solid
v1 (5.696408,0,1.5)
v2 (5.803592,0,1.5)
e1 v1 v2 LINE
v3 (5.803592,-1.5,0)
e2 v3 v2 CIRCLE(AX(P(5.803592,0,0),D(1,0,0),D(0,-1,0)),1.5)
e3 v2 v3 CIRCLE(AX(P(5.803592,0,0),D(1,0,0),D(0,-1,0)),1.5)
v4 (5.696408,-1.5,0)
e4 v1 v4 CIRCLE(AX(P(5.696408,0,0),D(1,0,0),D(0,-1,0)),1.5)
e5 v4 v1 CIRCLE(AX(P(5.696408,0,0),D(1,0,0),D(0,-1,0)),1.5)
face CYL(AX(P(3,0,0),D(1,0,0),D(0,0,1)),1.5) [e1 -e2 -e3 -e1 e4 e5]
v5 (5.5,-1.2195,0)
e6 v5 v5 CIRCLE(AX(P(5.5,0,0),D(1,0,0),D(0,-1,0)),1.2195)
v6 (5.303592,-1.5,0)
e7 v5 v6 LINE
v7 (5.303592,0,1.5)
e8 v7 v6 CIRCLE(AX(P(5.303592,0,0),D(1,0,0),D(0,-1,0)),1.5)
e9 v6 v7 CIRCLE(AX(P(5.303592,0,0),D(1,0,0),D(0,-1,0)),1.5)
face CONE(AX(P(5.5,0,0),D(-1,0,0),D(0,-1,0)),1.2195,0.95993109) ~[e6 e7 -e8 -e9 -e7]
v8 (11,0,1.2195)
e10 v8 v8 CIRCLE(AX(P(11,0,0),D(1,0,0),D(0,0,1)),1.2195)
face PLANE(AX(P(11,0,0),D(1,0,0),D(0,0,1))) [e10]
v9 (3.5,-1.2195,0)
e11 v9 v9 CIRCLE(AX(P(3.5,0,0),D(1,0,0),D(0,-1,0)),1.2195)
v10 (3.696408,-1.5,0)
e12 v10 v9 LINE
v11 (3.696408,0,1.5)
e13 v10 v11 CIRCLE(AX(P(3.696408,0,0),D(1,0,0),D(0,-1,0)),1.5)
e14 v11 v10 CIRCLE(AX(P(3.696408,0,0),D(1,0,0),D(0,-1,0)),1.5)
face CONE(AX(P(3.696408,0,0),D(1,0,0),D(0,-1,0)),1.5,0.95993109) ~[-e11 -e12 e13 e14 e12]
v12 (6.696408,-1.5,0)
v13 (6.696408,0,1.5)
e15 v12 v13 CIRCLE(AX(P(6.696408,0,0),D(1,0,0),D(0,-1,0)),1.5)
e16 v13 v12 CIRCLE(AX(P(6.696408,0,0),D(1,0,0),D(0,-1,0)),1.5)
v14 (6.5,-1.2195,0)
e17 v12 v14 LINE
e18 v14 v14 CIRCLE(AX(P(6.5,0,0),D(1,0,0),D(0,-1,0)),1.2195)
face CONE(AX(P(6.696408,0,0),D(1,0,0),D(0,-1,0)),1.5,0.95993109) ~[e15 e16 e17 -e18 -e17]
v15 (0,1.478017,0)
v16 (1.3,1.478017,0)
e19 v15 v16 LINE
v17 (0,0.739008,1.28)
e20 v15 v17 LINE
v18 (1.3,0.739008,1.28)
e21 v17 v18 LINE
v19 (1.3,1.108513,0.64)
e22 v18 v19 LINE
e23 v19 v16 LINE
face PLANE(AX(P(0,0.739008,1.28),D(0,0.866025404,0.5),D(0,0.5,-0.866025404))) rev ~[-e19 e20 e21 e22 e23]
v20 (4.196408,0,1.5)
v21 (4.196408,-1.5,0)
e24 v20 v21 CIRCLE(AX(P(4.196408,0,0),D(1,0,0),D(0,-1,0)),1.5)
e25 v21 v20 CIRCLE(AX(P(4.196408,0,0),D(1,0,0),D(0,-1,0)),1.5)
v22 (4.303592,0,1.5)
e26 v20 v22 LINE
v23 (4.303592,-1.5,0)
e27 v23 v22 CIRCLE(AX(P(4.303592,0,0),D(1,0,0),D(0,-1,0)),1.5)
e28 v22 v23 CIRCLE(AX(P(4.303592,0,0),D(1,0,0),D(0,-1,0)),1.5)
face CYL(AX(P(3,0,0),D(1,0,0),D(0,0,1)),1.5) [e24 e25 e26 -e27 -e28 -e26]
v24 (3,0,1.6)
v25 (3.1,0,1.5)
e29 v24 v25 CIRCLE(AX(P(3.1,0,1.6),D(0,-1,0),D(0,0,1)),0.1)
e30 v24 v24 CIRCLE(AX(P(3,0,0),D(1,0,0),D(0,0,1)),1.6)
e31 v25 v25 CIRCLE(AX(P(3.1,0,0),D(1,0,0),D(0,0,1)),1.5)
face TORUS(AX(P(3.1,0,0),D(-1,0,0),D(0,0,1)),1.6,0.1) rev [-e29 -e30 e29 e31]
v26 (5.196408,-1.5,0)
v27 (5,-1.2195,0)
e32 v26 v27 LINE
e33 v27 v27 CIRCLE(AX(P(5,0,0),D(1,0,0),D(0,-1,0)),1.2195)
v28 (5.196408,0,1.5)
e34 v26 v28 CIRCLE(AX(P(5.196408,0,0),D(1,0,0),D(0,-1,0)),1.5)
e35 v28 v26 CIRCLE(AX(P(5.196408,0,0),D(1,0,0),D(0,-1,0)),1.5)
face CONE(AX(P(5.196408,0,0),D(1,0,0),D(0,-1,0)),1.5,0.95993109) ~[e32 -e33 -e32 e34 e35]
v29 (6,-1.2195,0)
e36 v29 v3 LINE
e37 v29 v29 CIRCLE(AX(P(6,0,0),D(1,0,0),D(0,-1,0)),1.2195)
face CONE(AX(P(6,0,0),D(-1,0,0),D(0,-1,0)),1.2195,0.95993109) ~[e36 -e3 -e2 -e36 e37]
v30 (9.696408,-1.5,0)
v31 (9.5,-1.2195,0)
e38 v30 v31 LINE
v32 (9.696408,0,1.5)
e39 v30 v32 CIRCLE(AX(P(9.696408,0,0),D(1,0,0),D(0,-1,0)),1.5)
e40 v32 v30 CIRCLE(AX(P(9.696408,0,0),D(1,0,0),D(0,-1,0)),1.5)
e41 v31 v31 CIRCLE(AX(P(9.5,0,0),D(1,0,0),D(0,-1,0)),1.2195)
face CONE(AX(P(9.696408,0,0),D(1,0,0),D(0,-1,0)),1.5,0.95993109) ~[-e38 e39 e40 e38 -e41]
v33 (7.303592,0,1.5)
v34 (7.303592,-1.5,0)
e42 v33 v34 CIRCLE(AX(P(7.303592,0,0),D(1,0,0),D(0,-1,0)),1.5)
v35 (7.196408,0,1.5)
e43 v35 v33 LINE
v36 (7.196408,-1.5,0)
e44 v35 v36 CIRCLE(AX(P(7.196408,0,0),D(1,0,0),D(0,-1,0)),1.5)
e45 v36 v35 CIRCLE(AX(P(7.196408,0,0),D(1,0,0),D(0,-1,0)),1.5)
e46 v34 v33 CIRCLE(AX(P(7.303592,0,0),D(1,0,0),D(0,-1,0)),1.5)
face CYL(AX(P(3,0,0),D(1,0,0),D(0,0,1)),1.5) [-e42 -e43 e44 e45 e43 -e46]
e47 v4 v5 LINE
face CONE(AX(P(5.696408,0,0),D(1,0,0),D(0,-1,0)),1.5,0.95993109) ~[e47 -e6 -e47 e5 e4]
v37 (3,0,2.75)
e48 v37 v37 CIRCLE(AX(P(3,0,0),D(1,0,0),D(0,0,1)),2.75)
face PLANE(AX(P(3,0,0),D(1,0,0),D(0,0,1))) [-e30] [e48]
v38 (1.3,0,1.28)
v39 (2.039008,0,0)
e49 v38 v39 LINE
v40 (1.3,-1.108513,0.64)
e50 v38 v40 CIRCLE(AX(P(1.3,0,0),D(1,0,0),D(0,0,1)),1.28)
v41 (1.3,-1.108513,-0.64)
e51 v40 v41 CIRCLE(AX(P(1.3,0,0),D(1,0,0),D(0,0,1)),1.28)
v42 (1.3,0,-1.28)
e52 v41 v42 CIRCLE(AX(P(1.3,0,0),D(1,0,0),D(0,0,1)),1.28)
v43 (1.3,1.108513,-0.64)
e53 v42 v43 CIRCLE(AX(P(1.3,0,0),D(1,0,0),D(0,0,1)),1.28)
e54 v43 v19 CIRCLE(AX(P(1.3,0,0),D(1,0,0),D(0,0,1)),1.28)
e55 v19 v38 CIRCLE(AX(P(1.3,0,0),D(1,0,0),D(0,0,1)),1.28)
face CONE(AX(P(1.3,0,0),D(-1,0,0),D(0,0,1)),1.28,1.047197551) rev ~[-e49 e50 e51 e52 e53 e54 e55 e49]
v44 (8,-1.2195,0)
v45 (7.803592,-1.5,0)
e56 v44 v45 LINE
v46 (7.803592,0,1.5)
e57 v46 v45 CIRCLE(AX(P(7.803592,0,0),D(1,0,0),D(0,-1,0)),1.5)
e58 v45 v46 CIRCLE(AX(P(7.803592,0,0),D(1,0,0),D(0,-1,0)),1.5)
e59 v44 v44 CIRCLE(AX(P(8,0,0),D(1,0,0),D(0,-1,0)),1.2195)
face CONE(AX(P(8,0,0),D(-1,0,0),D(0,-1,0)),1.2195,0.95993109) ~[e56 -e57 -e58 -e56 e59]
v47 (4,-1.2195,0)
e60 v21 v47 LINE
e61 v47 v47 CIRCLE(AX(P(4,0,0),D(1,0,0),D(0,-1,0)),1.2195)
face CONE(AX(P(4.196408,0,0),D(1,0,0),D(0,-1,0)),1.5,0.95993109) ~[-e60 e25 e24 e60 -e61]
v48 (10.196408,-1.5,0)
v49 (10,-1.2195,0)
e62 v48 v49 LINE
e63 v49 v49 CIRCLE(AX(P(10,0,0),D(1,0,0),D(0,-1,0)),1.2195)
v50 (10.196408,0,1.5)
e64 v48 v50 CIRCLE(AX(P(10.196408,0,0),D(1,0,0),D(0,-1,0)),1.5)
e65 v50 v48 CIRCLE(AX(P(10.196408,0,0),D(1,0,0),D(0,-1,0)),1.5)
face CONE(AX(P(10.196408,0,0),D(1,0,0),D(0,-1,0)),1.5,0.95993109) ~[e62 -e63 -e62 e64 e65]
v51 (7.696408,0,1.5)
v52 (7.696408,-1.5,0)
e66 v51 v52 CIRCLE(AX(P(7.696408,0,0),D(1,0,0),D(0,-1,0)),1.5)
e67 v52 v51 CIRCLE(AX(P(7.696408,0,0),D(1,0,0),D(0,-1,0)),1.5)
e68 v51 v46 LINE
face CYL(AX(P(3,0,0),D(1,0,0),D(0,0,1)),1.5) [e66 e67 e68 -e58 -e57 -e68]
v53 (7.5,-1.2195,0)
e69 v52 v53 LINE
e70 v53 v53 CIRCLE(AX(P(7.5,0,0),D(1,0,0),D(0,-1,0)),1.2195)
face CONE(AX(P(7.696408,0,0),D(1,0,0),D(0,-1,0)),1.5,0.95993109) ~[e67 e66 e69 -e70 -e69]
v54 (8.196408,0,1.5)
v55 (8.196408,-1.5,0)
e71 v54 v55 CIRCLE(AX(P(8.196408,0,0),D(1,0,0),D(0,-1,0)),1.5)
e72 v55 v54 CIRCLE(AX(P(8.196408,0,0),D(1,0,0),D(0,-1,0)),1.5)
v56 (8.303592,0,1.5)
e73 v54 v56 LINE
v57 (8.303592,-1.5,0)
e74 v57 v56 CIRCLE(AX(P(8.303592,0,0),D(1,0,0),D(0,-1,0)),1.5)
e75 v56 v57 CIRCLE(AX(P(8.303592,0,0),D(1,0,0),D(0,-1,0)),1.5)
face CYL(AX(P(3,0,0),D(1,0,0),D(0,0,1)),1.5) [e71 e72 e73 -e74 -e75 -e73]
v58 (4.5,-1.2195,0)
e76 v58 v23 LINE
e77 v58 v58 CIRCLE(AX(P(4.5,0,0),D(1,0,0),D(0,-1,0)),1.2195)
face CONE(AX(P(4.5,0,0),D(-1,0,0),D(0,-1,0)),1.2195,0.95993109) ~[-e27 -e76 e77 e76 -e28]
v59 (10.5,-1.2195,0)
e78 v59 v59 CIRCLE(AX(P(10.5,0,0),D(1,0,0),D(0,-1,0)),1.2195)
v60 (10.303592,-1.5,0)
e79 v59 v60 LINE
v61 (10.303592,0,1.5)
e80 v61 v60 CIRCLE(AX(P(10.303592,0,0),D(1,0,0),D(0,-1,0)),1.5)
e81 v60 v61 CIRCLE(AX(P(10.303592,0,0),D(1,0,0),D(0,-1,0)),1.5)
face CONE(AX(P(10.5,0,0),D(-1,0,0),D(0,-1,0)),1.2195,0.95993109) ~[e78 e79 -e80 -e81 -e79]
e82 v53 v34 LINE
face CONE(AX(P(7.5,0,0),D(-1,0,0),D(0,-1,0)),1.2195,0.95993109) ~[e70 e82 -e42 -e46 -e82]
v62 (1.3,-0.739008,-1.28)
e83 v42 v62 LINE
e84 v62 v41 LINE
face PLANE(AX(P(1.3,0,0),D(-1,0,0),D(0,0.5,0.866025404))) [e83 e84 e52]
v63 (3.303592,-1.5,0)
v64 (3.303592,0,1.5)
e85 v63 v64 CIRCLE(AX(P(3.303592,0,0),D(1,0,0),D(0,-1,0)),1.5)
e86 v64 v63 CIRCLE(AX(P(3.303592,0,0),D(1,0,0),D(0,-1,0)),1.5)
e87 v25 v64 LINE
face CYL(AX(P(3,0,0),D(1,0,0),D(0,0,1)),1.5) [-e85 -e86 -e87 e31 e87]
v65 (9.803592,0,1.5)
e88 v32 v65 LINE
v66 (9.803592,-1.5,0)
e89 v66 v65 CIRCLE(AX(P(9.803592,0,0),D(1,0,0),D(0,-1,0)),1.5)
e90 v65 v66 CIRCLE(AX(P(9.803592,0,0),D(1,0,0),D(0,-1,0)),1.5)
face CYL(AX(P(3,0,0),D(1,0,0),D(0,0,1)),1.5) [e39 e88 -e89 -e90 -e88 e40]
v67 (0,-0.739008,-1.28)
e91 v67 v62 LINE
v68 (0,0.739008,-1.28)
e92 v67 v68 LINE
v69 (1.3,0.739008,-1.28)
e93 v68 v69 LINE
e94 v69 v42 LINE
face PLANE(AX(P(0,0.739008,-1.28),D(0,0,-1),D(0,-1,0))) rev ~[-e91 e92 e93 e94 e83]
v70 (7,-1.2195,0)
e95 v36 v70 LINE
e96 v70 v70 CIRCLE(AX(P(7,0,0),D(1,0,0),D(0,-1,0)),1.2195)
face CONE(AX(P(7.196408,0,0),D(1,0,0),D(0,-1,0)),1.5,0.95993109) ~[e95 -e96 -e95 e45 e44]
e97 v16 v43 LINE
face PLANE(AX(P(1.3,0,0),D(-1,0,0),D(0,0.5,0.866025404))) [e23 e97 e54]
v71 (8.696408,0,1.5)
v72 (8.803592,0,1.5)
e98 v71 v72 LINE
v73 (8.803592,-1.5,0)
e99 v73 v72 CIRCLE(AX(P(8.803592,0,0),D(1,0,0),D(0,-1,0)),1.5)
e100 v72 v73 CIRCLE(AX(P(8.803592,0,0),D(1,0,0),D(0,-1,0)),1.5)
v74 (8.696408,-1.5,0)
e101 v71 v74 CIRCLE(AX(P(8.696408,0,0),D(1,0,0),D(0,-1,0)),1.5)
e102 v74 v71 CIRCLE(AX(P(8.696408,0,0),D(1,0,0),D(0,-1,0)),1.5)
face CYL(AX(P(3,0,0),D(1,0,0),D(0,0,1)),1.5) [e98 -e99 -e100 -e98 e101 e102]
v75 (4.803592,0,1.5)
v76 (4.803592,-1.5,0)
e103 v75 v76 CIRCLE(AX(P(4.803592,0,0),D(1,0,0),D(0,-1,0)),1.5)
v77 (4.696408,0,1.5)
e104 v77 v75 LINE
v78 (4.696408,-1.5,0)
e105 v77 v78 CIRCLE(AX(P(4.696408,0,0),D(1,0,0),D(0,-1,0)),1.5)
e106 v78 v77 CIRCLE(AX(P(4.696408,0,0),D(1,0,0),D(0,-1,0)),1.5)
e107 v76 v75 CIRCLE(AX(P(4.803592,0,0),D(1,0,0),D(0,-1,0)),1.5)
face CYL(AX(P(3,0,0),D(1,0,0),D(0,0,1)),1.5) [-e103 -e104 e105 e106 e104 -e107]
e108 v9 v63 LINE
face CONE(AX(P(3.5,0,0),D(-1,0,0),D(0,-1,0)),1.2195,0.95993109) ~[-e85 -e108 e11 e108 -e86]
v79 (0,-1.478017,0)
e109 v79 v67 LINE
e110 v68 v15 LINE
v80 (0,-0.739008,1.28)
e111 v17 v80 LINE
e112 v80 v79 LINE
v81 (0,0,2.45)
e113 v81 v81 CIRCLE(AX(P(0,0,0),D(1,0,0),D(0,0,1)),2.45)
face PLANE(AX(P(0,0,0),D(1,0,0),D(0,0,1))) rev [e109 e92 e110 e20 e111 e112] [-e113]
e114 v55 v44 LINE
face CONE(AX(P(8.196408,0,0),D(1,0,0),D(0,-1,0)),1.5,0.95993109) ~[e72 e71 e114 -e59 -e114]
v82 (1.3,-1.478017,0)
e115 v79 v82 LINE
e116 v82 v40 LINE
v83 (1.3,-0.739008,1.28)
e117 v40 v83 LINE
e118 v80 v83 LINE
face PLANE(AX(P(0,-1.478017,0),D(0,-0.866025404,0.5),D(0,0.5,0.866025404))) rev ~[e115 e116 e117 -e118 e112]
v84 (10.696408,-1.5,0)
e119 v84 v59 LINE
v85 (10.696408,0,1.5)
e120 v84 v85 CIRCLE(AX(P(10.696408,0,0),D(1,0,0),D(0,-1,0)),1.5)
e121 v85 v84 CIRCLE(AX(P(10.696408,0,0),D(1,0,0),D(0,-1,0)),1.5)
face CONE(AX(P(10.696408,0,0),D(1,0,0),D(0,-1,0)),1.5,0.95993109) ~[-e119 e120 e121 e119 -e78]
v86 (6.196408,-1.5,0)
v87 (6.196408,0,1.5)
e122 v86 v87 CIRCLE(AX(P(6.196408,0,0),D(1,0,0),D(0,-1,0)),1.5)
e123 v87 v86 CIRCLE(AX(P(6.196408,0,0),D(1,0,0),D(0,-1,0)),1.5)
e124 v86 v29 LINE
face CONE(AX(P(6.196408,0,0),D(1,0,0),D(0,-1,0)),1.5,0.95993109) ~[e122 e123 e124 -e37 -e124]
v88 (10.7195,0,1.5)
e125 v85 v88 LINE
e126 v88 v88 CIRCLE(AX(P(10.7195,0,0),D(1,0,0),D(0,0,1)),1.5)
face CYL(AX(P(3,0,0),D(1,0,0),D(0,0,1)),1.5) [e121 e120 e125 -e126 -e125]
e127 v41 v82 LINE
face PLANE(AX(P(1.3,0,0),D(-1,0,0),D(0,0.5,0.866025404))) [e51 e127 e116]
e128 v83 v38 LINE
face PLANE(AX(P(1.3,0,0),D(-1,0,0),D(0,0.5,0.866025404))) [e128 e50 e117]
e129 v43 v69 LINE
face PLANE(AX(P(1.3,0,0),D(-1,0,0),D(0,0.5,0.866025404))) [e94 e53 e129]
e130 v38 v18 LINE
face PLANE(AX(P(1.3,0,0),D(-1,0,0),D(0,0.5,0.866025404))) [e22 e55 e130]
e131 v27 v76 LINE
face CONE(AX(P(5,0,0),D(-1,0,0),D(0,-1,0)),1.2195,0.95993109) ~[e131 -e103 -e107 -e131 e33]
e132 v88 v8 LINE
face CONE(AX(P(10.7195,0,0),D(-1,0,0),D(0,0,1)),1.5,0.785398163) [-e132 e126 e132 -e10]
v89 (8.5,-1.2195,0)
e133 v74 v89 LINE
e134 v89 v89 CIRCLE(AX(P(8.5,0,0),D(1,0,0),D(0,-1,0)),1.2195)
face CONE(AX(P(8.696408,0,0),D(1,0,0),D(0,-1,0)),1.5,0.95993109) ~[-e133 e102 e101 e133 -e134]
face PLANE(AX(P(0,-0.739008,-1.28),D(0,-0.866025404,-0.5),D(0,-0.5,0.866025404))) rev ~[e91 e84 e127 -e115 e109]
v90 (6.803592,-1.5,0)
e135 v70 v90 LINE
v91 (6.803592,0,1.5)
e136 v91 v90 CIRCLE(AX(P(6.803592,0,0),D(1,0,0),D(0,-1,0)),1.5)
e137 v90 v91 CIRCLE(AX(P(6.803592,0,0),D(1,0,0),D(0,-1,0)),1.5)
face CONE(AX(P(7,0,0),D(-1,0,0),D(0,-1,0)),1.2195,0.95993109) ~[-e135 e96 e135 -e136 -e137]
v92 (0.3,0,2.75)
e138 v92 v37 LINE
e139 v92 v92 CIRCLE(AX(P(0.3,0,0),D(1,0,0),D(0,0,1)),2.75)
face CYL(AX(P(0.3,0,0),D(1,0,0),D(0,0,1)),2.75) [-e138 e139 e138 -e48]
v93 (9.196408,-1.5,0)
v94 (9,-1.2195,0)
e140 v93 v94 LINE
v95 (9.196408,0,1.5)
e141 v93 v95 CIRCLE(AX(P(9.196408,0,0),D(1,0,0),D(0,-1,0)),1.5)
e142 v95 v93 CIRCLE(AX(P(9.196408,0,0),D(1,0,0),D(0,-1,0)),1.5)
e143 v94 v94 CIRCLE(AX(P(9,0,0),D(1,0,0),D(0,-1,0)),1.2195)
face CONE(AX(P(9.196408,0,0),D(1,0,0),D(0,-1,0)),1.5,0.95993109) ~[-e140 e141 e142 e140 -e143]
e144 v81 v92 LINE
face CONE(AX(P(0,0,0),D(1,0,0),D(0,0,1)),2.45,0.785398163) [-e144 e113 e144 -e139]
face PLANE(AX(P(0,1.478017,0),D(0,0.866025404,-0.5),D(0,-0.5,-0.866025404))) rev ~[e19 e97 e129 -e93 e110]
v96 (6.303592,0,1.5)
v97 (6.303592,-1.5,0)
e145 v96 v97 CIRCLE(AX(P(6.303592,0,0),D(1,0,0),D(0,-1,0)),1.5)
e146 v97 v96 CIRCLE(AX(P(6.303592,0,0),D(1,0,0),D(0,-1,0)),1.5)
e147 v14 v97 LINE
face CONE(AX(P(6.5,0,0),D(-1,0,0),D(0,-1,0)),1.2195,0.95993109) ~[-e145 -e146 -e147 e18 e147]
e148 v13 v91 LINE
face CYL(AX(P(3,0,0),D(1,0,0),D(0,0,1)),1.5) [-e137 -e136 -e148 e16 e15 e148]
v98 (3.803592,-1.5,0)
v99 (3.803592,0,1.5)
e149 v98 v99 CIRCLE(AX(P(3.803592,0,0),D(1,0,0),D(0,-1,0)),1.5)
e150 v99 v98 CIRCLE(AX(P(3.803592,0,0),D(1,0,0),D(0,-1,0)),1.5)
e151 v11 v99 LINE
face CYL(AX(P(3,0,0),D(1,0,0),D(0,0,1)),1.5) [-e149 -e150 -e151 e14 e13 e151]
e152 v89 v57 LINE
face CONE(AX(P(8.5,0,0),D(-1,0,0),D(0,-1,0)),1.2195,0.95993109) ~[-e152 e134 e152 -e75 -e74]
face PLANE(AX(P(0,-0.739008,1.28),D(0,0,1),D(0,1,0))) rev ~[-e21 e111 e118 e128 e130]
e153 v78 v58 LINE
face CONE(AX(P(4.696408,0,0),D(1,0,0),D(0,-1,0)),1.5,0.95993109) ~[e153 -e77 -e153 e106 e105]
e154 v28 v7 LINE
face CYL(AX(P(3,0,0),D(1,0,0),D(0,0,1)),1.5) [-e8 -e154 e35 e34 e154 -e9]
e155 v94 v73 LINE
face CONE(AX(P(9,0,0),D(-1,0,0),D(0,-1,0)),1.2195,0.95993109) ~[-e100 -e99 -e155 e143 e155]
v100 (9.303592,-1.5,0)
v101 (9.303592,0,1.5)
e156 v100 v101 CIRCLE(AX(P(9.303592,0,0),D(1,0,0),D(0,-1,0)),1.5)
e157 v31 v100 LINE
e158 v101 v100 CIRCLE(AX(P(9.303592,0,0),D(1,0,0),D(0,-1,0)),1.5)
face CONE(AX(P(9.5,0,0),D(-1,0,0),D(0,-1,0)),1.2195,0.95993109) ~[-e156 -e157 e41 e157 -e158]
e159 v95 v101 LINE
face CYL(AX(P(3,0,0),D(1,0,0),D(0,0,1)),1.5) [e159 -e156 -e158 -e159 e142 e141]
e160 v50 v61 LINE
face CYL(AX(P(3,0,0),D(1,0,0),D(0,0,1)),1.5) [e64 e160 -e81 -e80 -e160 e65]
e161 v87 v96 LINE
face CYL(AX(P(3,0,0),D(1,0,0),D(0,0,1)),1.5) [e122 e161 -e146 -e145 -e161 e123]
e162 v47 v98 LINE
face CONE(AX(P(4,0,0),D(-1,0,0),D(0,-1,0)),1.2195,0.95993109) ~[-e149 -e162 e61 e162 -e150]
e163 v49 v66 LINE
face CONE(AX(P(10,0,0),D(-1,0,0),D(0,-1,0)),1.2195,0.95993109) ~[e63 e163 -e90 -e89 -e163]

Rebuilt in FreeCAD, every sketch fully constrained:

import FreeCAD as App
import Part
import Sketcher
Q = App.Units.Quantity


def edges_at(feature, points):
    """Names of the edges that pass closest to the given points."""
    edges = feature.Shape.Edges
    near = lambda p: min(range(len(edges)), key=lambda i: edges[i].distToShape(Part.Vertex(*p))[0])
    return sorted({f"Edge{near(p) + 1}" for p in points})


def add_polygon(sketch, points):
    """Adds a closed chain of lines whose ends are joined by coincident constraints."""
    first, n = sketch.GeometryCount, len(points)
    for a, b in zip(points, points[1:] + points[:1]):
        sketch.addGeometry(Part.LineSegment(App.Vector(*a, 0), App.Vector(*b, 0)), False)
    for i in range(n):
        sketch.addConstraint(Sketcher.Constraint("Coincident", first + i, 2, first + (i + 1) % n, 1))

doc = App.newDocument("Part")
params = doc.addObject("Spreadsheet::Sheet", "Params")
for row, (alias, value) in enumerate([
    ("sketch1_width", "11 mm"),
    ("sketch1_width2", "2.7 mm"),
    ("sketch1_height", "2.45 mm"),
    ("sketch1_height2", "1.25 mm"),
    ("revolution_angle", "360 deg"),
    ("fillet_radius", "0.1 mm"),
    ("sketch2_width", "1.3 mm"),
    ("sketch2_height", "1.28 mm"),
    ("groove_angle", "360 deg"),
    ("pocket1_length", "1.3 mm"),
    ("groove2_angle", "360 deg"),
    ("linearpattern_pitch", "0.5 mm"),
], start=1):
    params.set(f"A{row}", alias)
    params.set(f"B{row}", "=" + value)
    params.setAlias(f"B{row}", alias)

body = doc.addObject("PartDesign::Body", "Body")

sketch1 = body.newObject("Sketcher::SketchObject", "Sketch")
sketch1.AttachmentSupport = (doc.getObject("XY_Plane"), [""])
sketch1.MapMode = "FlatFace"
add_polygon(sketch1, [(0, 2.45), (0, 0), (11, 0), (11, 1.22), (10.72, 1.5), (3, 1.5), (3, 2.75), (0.3, 2.75)])
sketch1.addConstraint([
    Sketcher.Constraint("Vertical", 0),
    Sketcher.Constraint("Horizontal", 1),
    Sketcher.Constraint("Vertical", 2),
    Sketcher.Constraint("Horizontal", 4),
    Sketcher.Constraint("Vertical", 5),
    Sketcher.Constraint("Horizontal", 6),
    Sketcher.Constraint("Coincident", 0, 2, -1, 1),
    Sketcher.Constraint("Perpendicular", 3, 7),
    Sketcher.Constraint("DistanceX", 1, 1, 1, 2, 11.0),
    Sketcher.Constraint("Angle", 3, Q("135 deg")),
    Sketcher.Constraint("DistanceX", 6, 2, 6, 1, 2.7),
    Sketcher.Constraint("DistanceX", -1, 1, 4, 2, 3.0),
    Sketcher.Constraint("DistanceY", 0, 2, 0, 1, 2.45),
    Sketcher.Constraint("DistanceY", 5, 1, 5, 2, 1.25),
    Sketcher.Constraint("DistanceX", 4, 2, 4, 1, 7.7195),
])
sketch1.setExpression("Constraints[16]", "Params.sketch1_width")
sketch1.setExpression("Constraints[18]", "Params.sketch1_width2")
sketch1.setExpression("Constraints[20]", "Params.sketch1_height")
sketch1.setExpression("Constraints[21]", "Params.sketch1_height2")
revolution = body.newObject("PartDesign::Revolution", "Revolution")
revolution.Profile = sketch1
revolution.ReferenceAxis = (sketch1, ["H_Axis"])
revolution.setExpression("Angle", "Params.revolution_angle")
doc.recompute()

fillet = body.newObject("PartDesign::Fillet", "Fillet")
fillet.Base = (revolution, edges_at(revolution, [(3, 0, -1.5)]))
fillet.setExpression("Radius", "Params.fillet_radius")

sketch2 = body.newObject("Sketcher::SketchObject", "Sketch001")
sketch2.AttachmentSupport = (doc.getObject("XY_Plane"), [""])
sketch2.MapMode = "FlatFace"
add_polygon(sketch2, [(1.3, 1.3), (0, 1.3), (0, 0), (2, 0)])
sketch2.addConstraint([
    Sketcher.Constraint("Horizontal", 0),
    Sketcher.Constraint("Vertical", 1),
    Sketcher.Constraint("Horizontal", 2),
    Sketcher.Constraint("Coincident", 1, 2, -1, 1),
    Sketcher.Constraint("Angle", 3, Q("120 deg")),
    Sketcher.Constraint("DistanceX", 0, 2, 0, 1, 1.3),
    Sketcher.Constraint("DistanceY", 1, 2, 1, 1, 1.28),
])
sketch2.setExpression("Constraints[9]", "Params.sketch2_width")
sketch2.setExpression("Constraints[10]", "Params.sketch2_height")
groove = body.newObject("PartDesign::Groove", "Groove")
groove.Profile = sketch2
groove.ReferenceAxis = (sketch2, ["H_Axis"])
groove.setExpression("Angle", "Params.groove_angle")

sketch3 = body.newObject("Sketcher::SketchObject", "Sketch002")
sketch3.AttachmentSupport = (doc.getObject("YZ_Plane"), [""])
sketch3.MapMode = "FlatFace"
add_polygon(sketch3, [(1.5, 0), (0.7, -1.3), (-0.7, -1.3), (-1.5, 0), (-0.7, 1.3), (0.7, 1.3)])
sketch3.addConstraint([
    Sketcher.Constraint("Horizontal", 1),
    Sketcher.Constraint("Horizontal", 4),
    Sketcher.Constraint("Symmetric", 0, 2, 3, 2, -1, 1),
    Sketcher.Constraint("Symmetric", 2, 2, 5, 2, -1, 1),
    Sketcher.Constraint("PointOnObject", 2, 2, -1),
    Sketcher.Constraint("Parallel", 2, 5),
    Sketcher.Constraint("Vertical", 1, 2, 3, 2),
    Sketcher.Constraint("Angle", 0, Q("-120 deg")),
    Sketcher.Constraint("DistanceY", 0, 2, -1, 1, 1.28),
    Sketcher.Constraint("DistanceX", 1, 2, 1, 1, 1.478017),
])
pocket1 = body.newObject("PartDesign::Pocket", "Pocket")
pocket1.Profile = sketch3
pocket1.setExpression("Length", "Params.pocket1_length")
pocket1.Reversed = True

sketch4 = body.newObject("Sketcher::SketchObject", "Sketch003")
sketch4.AttachmentSupport = (doc.getObject("XY_Plane"), [""])
sketch4.MapMode = "FlatFace"
add_polygon(sketch4, [(3.5, -1.22), (3.3, -1.5), (3.3, -1.88), (3.7, -1.88), (3.7, -1.5)])
sketch4.addConstraint([
    Sketcher.Constraint("Vertical", 1),
    Sketcher.Constraint("Horizontal", 2),
    Sketcher.Constraint("Vertical", 3),
    Sketcher.Constraint("Horizontal", 0, 2, 3, 2),
    Sketcher.Constraint("Equal", 0, 4),
    Sketcher.Constraint("Angle", 0, Q("-125 deg")),
    Sketcher.Constraint("DistanceY", 0, 2, -1, 1, 1.5),
    Sketcher.Constraint("DistanceX", -1, 1, 4, 2, 3.5),
    Sketcher.Constraint("DistanceY", 1, 2, 1, 1, 0.375),
    Sketcher.Constraint("DistanceY", 4, 2, -1, 1, 1.2195),
])
groove2 = body.newObject("PartDesign::Groove", "Groove001")
groove2.Profile = sketch4
groove2.ReferenceAxis = (sketch4, ["H_Axis"])
groove2.setExpression("Angle", "Params.groove2_angle")
doc.recompute()

linearpattern = body.newObject("PartDesign::LinearPattern", "LinearPattern")
linearpattern.Originals = [groove2]
linearpattern.Direction = (doc.getObject("X_Axis"), [""])
linearpattern.Mode = "offset"
linearpattern.setExpression("Offset", "Params.linearpattern_pitch")
linearpattern.Occurrences = 15
body.Tip = linearpattern

doc.recompute()
